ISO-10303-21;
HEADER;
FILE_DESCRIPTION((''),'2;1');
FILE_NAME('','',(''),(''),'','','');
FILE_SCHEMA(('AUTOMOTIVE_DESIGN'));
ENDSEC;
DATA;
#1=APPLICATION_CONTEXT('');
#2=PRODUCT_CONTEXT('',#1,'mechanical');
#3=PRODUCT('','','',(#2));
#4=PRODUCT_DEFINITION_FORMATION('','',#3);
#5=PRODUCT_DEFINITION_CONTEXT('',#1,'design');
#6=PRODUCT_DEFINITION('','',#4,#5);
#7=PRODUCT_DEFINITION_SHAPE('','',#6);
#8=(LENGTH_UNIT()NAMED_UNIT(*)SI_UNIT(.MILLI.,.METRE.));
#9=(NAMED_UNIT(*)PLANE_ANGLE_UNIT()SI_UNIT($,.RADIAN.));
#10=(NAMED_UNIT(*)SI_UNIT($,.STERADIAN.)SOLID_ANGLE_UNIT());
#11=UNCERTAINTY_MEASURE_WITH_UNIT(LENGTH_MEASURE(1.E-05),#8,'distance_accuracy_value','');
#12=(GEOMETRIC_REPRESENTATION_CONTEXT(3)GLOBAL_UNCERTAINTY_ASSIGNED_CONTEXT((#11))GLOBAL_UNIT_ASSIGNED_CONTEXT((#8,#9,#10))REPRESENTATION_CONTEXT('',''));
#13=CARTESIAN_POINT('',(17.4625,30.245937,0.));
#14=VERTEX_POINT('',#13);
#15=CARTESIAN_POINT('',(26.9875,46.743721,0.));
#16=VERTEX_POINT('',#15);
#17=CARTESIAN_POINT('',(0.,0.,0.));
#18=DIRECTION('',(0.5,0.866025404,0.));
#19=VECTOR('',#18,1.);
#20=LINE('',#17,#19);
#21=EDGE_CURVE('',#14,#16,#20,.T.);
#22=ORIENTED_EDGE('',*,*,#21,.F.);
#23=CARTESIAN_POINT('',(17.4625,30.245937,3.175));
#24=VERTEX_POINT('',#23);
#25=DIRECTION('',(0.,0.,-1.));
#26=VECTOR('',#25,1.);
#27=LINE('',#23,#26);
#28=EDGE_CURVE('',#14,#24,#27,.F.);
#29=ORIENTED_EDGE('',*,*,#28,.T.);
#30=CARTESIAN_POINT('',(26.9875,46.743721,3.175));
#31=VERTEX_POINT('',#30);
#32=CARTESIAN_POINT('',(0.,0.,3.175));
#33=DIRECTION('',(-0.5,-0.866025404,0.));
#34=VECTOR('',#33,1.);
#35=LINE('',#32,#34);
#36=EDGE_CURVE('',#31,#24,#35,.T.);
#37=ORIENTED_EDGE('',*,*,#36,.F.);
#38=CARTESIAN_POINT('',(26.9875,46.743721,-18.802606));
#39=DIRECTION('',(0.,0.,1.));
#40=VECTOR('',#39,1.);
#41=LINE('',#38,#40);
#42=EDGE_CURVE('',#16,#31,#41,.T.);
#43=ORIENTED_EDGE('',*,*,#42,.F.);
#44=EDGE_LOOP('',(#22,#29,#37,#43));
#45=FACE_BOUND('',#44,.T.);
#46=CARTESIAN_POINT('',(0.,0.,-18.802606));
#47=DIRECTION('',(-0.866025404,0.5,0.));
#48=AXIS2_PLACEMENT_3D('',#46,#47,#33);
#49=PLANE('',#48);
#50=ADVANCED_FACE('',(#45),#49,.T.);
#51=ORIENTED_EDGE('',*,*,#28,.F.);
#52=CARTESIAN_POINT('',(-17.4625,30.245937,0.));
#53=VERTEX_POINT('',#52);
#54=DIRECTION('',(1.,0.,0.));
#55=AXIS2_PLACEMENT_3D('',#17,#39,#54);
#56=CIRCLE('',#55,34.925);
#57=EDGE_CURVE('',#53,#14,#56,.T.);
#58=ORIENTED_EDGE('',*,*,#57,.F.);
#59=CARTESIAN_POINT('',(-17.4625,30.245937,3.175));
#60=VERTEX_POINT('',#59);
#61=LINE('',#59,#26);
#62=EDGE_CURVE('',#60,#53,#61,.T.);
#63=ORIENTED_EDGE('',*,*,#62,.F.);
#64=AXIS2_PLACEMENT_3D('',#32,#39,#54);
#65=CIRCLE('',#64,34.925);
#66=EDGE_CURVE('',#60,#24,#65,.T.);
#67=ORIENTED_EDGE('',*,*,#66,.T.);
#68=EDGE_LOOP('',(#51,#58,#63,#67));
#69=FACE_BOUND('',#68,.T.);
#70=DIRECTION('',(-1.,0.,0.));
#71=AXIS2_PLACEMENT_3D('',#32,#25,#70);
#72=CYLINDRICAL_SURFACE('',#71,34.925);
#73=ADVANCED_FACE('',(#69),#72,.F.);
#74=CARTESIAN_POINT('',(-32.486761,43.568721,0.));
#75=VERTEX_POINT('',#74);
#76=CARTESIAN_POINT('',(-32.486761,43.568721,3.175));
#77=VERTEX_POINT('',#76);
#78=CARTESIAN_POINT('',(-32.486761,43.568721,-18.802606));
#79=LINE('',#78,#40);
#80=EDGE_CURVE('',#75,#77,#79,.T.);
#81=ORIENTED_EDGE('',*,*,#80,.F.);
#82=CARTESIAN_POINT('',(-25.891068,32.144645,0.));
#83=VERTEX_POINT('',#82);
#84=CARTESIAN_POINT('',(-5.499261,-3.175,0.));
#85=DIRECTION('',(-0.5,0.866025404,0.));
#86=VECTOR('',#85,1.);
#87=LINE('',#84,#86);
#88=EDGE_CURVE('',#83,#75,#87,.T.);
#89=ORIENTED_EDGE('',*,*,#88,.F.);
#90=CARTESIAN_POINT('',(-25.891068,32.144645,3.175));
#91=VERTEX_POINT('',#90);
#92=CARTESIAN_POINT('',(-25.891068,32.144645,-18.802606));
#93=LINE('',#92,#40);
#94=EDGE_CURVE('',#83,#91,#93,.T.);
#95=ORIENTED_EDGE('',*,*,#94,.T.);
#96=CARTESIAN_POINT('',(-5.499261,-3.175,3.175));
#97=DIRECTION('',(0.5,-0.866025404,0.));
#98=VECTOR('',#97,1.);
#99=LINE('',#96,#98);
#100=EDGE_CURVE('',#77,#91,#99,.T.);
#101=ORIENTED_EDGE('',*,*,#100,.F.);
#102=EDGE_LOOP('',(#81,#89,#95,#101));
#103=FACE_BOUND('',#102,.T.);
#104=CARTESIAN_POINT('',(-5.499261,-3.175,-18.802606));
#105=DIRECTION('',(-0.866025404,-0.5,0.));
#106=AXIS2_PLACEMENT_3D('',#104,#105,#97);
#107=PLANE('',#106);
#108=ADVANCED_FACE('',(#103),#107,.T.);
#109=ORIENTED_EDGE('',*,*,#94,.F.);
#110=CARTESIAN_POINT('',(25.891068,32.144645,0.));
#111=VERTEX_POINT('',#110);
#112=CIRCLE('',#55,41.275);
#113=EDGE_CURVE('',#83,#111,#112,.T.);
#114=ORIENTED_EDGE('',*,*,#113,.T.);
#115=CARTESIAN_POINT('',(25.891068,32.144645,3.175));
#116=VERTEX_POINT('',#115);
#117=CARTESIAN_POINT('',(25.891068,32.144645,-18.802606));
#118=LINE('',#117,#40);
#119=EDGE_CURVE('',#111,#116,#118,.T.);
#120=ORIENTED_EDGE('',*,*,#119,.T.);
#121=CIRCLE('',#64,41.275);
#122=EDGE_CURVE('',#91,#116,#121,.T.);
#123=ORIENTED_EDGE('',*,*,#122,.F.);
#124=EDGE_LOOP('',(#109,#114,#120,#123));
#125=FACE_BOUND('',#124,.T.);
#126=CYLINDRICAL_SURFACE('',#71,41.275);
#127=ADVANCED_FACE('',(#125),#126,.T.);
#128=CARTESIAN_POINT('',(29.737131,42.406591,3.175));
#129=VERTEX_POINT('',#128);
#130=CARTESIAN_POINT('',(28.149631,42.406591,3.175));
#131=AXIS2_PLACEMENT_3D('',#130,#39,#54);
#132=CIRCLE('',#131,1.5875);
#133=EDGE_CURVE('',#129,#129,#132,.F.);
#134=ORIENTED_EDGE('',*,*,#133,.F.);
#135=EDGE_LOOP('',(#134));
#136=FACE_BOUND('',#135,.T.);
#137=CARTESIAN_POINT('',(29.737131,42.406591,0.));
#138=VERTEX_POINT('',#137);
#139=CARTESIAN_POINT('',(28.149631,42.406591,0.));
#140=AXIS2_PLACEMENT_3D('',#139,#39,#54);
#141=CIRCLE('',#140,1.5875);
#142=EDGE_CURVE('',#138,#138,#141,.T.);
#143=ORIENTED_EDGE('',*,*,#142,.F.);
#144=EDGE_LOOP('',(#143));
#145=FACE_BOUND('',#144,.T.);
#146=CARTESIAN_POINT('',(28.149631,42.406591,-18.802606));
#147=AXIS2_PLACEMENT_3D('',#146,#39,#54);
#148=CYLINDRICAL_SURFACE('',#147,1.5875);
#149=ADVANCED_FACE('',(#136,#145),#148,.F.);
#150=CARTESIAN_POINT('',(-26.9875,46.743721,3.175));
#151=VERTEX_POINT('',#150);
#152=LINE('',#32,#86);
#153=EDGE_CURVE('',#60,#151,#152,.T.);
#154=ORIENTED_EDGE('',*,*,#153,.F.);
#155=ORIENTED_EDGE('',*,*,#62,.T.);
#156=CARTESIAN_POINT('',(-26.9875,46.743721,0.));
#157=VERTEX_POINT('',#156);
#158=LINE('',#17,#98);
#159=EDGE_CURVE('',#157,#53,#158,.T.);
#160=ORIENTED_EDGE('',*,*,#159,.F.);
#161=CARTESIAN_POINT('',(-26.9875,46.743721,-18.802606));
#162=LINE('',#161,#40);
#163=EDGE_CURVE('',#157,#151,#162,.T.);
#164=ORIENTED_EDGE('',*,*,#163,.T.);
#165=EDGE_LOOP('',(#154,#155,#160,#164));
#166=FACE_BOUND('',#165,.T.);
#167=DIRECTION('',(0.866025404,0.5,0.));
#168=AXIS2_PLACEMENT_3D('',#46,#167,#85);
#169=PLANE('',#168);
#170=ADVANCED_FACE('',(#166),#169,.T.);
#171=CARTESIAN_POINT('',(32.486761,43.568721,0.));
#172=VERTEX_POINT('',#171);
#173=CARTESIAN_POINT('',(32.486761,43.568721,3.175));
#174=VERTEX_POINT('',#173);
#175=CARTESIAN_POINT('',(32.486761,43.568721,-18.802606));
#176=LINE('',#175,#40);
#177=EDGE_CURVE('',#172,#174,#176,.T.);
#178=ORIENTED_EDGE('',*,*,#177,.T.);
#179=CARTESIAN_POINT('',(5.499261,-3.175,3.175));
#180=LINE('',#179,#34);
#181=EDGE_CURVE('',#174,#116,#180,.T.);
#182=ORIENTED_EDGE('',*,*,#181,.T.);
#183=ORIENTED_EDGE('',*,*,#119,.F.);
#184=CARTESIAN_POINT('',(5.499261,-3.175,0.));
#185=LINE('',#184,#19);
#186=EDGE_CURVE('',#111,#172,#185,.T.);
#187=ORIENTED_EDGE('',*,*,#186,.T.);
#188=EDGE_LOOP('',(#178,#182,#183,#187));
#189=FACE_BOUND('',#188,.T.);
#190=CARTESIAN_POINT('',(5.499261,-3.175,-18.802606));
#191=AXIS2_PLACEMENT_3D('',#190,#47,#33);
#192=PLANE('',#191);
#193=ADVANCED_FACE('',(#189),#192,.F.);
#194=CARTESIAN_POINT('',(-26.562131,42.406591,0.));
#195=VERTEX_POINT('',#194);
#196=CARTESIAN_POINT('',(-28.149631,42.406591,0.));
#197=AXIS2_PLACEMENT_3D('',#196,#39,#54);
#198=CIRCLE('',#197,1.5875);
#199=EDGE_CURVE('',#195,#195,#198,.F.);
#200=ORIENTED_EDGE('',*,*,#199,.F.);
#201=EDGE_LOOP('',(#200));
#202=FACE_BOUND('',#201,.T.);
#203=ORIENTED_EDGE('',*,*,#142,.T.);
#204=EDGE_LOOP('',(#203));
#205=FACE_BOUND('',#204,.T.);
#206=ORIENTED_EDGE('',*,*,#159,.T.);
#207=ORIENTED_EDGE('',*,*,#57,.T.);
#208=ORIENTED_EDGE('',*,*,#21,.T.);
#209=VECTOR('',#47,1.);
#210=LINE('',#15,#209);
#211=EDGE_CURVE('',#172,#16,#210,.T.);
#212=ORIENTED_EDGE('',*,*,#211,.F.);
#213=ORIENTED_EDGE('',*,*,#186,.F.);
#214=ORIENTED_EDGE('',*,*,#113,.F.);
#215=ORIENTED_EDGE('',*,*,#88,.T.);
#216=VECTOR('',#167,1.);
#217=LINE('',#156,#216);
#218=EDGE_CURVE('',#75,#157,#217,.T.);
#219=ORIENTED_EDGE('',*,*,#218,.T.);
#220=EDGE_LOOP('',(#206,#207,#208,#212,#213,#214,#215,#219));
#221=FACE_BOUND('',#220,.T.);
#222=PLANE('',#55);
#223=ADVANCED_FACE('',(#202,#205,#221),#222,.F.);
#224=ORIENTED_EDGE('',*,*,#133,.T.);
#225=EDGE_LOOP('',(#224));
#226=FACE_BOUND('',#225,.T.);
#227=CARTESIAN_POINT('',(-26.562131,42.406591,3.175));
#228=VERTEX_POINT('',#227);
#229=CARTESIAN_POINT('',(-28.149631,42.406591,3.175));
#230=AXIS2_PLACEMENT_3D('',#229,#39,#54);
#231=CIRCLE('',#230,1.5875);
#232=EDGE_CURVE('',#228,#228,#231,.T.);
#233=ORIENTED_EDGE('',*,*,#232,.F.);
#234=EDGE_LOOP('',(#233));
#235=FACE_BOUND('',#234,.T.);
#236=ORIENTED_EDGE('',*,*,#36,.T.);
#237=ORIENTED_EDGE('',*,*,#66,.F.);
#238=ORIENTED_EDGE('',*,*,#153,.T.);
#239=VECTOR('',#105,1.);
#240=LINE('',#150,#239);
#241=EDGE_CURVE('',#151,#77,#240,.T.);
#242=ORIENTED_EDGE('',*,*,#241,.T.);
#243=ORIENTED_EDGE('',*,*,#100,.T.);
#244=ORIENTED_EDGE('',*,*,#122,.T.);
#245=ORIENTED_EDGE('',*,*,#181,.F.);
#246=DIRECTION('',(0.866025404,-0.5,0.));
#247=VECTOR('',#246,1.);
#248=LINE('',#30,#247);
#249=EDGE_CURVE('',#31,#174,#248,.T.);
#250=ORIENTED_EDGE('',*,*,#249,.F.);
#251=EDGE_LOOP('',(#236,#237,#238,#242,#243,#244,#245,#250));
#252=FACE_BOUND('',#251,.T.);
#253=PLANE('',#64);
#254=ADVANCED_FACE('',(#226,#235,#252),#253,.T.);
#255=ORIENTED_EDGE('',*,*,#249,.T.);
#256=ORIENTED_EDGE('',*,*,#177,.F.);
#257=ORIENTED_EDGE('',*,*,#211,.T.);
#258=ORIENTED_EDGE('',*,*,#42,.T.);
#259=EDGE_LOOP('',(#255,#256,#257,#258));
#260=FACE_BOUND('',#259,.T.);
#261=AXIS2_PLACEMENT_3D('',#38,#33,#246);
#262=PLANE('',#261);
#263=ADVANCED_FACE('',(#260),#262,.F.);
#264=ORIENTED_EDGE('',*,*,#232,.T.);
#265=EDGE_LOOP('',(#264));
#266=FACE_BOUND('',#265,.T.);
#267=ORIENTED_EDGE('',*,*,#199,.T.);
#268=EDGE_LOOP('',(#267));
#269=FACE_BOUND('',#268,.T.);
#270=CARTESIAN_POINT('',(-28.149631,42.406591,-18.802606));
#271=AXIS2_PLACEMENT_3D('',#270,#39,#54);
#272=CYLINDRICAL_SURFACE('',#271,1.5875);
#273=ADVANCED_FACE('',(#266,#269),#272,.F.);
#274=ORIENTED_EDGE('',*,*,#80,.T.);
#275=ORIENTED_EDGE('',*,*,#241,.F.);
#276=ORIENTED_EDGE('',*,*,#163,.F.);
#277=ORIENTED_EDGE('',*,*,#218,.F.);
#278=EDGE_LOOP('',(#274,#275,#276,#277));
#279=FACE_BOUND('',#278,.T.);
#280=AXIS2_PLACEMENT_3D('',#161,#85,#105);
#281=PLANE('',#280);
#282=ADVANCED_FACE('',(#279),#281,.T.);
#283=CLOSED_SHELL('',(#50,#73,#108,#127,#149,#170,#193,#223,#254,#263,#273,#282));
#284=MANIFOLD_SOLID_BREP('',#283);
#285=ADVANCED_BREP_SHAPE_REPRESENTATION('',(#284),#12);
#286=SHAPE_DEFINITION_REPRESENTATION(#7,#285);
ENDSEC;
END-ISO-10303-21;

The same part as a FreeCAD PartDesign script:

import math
import FreeCAD as App
import Part
import Sketcher
Q = App.Units.Quantity

doc = App.newDocument("Part")
body = doc.addObject("PartDesign::Body", "Body")

sketch1 = body.newObject("Sketcher::SketchObject", "Sketch")
sketch1.AttachmentSupport = (doc.getObject("XY_Plane"), [""])
sketch1.MapMode = "FlatFace"
sketch1.addGeometry(Part.Circle(App.Vector(0, 0, 0), App.Vector(0, 0, 1), 41), False)
sketch1.addGeometry(Part.Circle(App.Vector(0, 0, 0), App.Vector(0, 0, 1), 35), False)
sketch1.addConstraint(Sketcher.Constraint("Coincident", 0, 3, -1, 1))
sketch1.addConstraint(Sketcher.Constraint("Coincident", 1, 3, -1, 1))
sketch1.addConstraint(Sketcher.Constraint("Diameter", 0, Q("3.25 in")))
sketch1.addConstraint(Sketcher.Constraint("Diameter", 1, Q("2.75 in")))
pad1 = body.newObject("PartDesign::Pad", "Pad")
pad1.Profile = sketch1
pad1.Length = Q("0.125 in")

sketch2 = body.newObject("Sketcher::SketchObject", "Sketch001")
sketch2.AttachmentSupport = (doc.getObject("XY_Plane"), [""])
sketch2.MapMode = "FlatFace"
sketch2.AttachmentOffset = App.Placement(App.Vector(0, 0, 0.125 * 25.4), App.Rotation())
sketch2.addGeometry(Part.ArcOfCircle(Part.Circle(App.Vector(0, 0, 0), App.Vector(0, 0, 1), 41.28), math.radians(120), math.radians(128.85)), False)
sketch2.addGeometry(Part.LineSegment(App.Vector(-20.64, 35.75, 0), App.Vector(-26.99, 46.74, 0)), False)
sketch2.addGeometry(Part.LineSegment(App.Vector(-26.99, 46.74, 0), App.Vector(-32.49, 43.57, 0)), False)
sketch2.addGeometry(Part.LineSegment(App.Vector(-32.49, 43.57, 0), App.Vector(-26.14, 32.57, 0)), False)
sketch2.addGeometry(Part.LineSegment(App.Vector(-26.14, 32.57, 0), App.Vector(-25.89, 32.14, 0)), False)
sketch2.addGeometry(Part.Circle(App.Vector(-28.15, 42.41, 0), App.Vector(0, 0, 1), 1.59), False)
sketch2.addGeometry(Part.LineSegment(App.Vector(26.99, 46.74, 0), App.Vector(20.64, 35.75, 0)), False)
sketch2.addGeometry(Part.ArcOfCircle(Part.Circle(App.Vector(0, 0, 0), App.Vector(0, 0, 1), 41.28), math.radians(51.15), math.radians(60)), False)
sketch2.addGeometry(Part.LineSegment(App.Vector(25.89, 32.14, 0), App.Vector(26.14, 32.57, 0)), False)
sketch2.addGeometry(Part.LineSegment(App.Vector(26.14, 32.57, 0), App.Vector(32.49, 43.57, 0)), False)
sketch2.addGeometry(Part.LineSegment(App.Vector(32.49, 43.57, 0), App.Vector(26.99, 46.74, 0)), False)
sketch2.addGeometry(Part.Circle(App.Vector(28.15, 42.41, 0), App.Vector(0, 0, 1), 1.59), False)
sketch2.addConstraint(Sketcher.Constraint("Coincident", 0, 1, 1, 1))
sketch2.addConstraint(Sketcher.Constraint("Coincident", 1, 2, 2, 1))
sketch2.addConstraint(Sketcher.Constraint("Coincident", 2, 2, 3, 1))
sketch2.addConstraint(Sketcher.Constraint("Coincident", 3, 2, 4, 1))
sketch2.addConstraint(Sketcher.Constraint("Coincident", 4, 2, 0, 2))
sketch2.addConstraint(Sketcher.Constraint("Coincident", 6, 2, 7, 2))
sketch2.addConstraint(Sketcher.Constraint("Coincident", 7, 1, 8, 1))
sketch2.addConstraint(Sketcher.Constraint("Coincident", 8, 2, 9, 1))
sketch2.addConstraint(Sketcher.Constraint("Coincident", 9, 2, 10, 1))
sketch2.addConstraint(Sketcher.Constraint("Coincident", 10, 2, 6, 1))
sketch2.addConstraint(Sketcher.Constraint("Coincident", 0, 3, -1, 1))
sketch2.addConstraint(Sketcher.Constraint("Coincident", 7, 3, -1, 1))
sketch2.addConstraint(Sketcher.Constraint("Equal", 0, 7))
sketch2.addConstraint(Sketcher.Constraint("Equal", 5, 11))
sketch2.addConstraint(Sketcher.Constraint("Symmetric", 5, 3, 11, 3, -2))
sketch2.addConstraint(Sketcher.Constraint("Symmetric", 3, 2, 8, 2, -2))
sketch2.addConstraint(Sketcher.Constraint("Symmetric", 2, 2, 9, 2, -2))
sketch2.addConstraint(Sketcher.Constraint("Symmetric", 1, 2, 10, 2, -2))
sketch2.addConstraint(Sketcher.Constraint("Perpendicular", 1, 2))
sketch2.addConstraint(Sketcher.Constraint("Perpendicular", 2, 3))
sketch2.addConstraint(Sketcher.Constraint("Parallel", 3, 4))
sketch2.addConstraint(Sketcher.Constraint("Parallel", 6, 8))
sketch2.addConstraint(Sketcher.Constraint("Parallel", 8, 9))
sketch2.addConstraint(Sketcher.Constraint("Equal", 1, 3))
sketch2.addConstraint(Sketcher.Constraint("Diameter", 5, Q("0.125 in")))
sketch2.addConstraint(Sketcher.Constraint("Angle", 1, Q("120 deg")))
sketch2.addConstraint(Sketcher.Constraint("Radius", 0, Q("1.625 in")))
sketch2.addConstraint(Sketcher.Constraint("Distance", 1, Q("0.5 in")))
sketch2.addConstraint(Sketcher.Constraint("Distance", 2, Q("0.25 in")))
sketch2.addConstraint(Sketcher.Constraint("DistanceX", 0, 1, -1, 1, Q("0.8125 in")))
sketch2.addConstraint(Sketcher.Constraint("DistanceX", 5, 3, -1, 1, 28.149631))
sketch2.addConstraint(Sketcher.Constraint("DistanceY", -1, 1, 5, 3, 42.406591))
pad2 = body.newObject("PartDesign::Pad", "Pad001")
pad2.Profile = sketch2
pad2.Length = Q("0.125 in")
pad2.Reversed = True

sketch3 = body.newObject("Sketcher::SketchObject", "Sketch002")
sketch3.AttachmentSupport = (doc.getObject("XY_Plane"), [""])
sketch3.MapMode = "FlatFace"
sketch3.AttachmentOffset = App.Placement(App.Vector(0, 0, 0.125 * 25.4), App.Rotation())
sketch3.addGeometry(Part.LineSegment(App.Vector(-21, 36, 0), App.Vector(0, 0, 0)), False)
sketch3.addGeometry(Part.LineSegment(App.Vector(0, 0, 0), App.Vector(21, 36, 0)), False)
sketch3.addGeometry(Part.ArcOfCircle(Part.Circle(App.Vector(0, 0, 0), App.Vector(0, 0, 1), 41), math.radians(60), math.radians(120)), False)
sketch3.addConstraint(Sketcher.Constraint("Coincident", 0, 2, 1, 1))
sketch3.addConstraint(Sketcher.Constraint("Coincident", 1, 2, 2, 1))
sketch3.addConstraint(Sketcher.Constraint("Coincident", 2, 2, 0, 1))
sketch3.addConstraint(Sketcher.Constraint("Coincident", 2, 3, -1, 1))
sketch3.addConstraint(Sketcher.Constraint("Coincident", 0, 2, -1, 1))
sketch3.addConstraint(Sketcher.Constraint("Horizontal", 1, 2, 2, 2))
sketch3.addConstraint(Sketcher.Constraint("Angle", 0, Q("-60 deg")))
sketch3.addConstraint(Sketcher.Constraint("Radius", 2, Q("1.625 in")))
pocket1 = body.newObject("PartDesign::Pocket", "Pocket")
pocket1.Profile = sketch3
pocket1.Length = Q("0.125 in")

doc.recompute()
